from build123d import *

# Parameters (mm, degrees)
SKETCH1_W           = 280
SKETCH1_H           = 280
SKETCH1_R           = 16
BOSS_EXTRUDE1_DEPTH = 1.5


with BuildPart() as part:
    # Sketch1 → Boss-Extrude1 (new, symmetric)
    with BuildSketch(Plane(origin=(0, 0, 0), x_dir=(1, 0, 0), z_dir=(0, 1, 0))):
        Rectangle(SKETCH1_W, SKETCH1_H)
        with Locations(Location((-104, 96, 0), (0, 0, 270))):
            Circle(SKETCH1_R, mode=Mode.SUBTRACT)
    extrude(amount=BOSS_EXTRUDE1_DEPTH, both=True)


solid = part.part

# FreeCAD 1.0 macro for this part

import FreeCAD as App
import Part
import Sketcher
from FreeCAD import Vector
Q = App.Units.Quantity


def add_polygon(sketch, points):
    """Adds a closed chain of lines whose ends are joined by coincident constraints."""
    first, n = sketch.GeometryCount, len(points)
    for a, b in zip(points, points[1:] + points[:1]):
        sketch.addGeometry(Part.LineSegment(App.Vector(*a, 0), App.Vector(*b, 0)), False)
    for i in range(n):
        sketch.addConstraint(Sketcher.Constraint("Coincident", first + i, 2, first + (i + 1) % n, 1))

doc = App.newDocument("Part")
body = doc.addObject("PartDesign::Body", "Body")

# Sketch on XZ plane
sketch1 = doc.addObject("Sketcher::SketchObject", "Sketch")
body.addObject(sketch1)
sketch1.AttachmentSupport = (doc.XZ_Plane, [""])
sketch1.MapMode = "FlatFace"
add_polygon(sketch1, [(-140, -140), (-140, 140), (140, 140), (140, -140)])  # lines 0-3
sketch1.addGeometry(Part.Circle(Vector(-104, -96, 0), Vector(0, 0, 1), 16), False)  # 4
sketch1.addConstraint([
    Sketcher.Constraint("Vertical", 0),
    Sketcher.Constraint("Horizontal", 1),
    Sketcher.Constraint("Vertical", 2),
    Sketcher.Constraint("Horizontal", 3),
    Sketcher.Constraint("Symmetric", 0, 2, 2, 2, -1, 1),
    Sketcher.Constraint("Equal", 3, 0),
    Sketcher.Constraint("Diameter", 4, Q("32 mm")),
    Sketcher.Constraint("DistanceX", 1, 1, 1, 2, Q("280 mm")),
    Sketcher.Constraint("DistanceX", 4, 3, -1, 1, Q("104 mm")),
    Sketcher.Constraint("DistanceY", 4, 3, -1, 1, Q("96 mm")),
])
pad1 = doc.addObject("PartDesign::Pad", "Pad")
body.addObject(pad1)
pad1.Profile = sketch1
pad1.Length = 3
pad1.Midplane = True

doc.recompute()
